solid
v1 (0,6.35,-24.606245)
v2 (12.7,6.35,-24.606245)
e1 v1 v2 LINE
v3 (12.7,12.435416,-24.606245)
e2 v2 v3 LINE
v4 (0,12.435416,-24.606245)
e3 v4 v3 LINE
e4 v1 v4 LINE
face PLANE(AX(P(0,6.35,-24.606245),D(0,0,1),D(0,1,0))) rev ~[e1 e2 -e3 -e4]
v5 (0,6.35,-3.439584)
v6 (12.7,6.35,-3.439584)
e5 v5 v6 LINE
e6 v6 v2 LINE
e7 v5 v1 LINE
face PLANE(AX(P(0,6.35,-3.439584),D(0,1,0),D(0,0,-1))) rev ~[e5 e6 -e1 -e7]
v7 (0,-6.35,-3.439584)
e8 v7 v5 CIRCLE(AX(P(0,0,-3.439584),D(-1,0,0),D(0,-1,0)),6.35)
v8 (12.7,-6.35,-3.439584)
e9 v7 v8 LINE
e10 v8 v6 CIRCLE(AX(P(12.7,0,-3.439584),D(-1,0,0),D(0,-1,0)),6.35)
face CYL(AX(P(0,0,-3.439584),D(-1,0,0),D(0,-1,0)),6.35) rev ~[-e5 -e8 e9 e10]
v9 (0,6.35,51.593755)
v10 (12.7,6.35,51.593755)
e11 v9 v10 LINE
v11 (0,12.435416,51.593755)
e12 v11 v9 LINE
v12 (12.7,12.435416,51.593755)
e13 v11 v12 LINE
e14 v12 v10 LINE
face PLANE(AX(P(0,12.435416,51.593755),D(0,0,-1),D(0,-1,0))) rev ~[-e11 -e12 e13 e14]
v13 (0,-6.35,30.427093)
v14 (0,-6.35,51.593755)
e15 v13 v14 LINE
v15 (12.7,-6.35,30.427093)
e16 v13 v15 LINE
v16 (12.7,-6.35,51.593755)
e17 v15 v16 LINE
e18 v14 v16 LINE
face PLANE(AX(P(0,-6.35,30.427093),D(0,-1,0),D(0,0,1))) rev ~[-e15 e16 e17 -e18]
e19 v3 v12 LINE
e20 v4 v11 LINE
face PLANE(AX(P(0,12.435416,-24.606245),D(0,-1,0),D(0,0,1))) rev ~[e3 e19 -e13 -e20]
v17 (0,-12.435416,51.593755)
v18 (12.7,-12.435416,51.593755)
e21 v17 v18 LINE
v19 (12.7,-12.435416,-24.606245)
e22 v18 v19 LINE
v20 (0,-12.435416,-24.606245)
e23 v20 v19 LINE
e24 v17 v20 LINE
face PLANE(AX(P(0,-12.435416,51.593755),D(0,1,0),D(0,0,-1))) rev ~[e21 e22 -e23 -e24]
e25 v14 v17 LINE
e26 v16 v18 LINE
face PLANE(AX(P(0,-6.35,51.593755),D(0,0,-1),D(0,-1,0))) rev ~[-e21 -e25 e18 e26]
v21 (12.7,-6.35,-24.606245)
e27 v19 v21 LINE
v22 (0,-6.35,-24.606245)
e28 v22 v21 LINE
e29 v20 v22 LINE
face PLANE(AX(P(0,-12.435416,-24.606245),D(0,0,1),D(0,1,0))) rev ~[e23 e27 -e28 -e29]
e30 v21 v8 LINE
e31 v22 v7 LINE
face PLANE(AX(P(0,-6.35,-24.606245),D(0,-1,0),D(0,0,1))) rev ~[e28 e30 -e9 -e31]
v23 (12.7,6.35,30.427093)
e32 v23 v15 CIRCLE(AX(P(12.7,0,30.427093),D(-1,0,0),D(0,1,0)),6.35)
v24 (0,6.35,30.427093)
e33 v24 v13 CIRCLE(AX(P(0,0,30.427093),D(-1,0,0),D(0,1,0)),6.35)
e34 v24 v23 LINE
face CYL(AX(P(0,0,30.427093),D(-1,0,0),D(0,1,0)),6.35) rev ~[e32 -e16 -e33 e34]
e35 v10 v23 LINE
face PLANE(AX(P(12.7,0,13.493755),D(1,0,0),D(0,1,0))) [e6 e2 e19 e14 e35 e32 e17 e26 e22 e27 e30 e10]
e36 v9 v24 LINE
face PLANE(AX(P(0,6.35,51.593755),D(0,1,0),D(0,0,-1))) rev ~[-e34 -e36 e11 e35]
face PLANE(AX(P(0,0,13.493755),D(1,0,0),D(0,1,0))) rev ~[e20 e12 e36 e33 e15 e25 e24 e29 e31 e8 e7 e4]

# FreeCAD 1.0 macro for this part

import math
import FreeCAD as App
import Part
import Sketcher

V = App.Vector
Q = App.Units.Quantity

doc = App.newDocument("Part")
body = doc.addObject("PartDesign::Body", "Body")

# Sketch on YZ plane
sketch1 = doc.addObject("Sketcher::SketchObject", "Sketch")
body.addObject(sketch1)
sketch1.AttachmentSupport = (doc.YZ_Plane, [""])
sketch1.MapMode = "FlatFace"
sketch1.addGeometry([
    Part.LineSegment(V(6.35, -24.606245, 0), V(12.435416, -24.606245, 0)),  # 0
    Part.LineSegment(V(12.435416, -24.606245, 0), V(12.435416, 51.593755, 0)),  # 1
    Part.LineSegment(V(12.435416, 51.593755, 0), V(6.35, 51.593755, 0)),  # 2
    Part.LineSegment(V(6.35, 51.593755, 0), V(6.35, 30.427093, 0)),  # 3
    Part.ArcOfCircle(Part.Circle(V(0, 30.427093, 0), V(0, 0, 1), 6.35), math.radians(180), math.radians(360)),  # 4
    Part.LineSegment(V(-6.35, 30.427093, 0), V(-6.35, 51.593755, 0)),  # 5
    Part.LineSegment(V(-6.35, 51.593755, 0), V(-12.435416, 51.593755, 0)),  # 6
    Part.LineSegment(V(-12.435416, 51.593755, 0), V(-12.435416, -24.606245, 0)),  # 7
    Part.LineSegment(V(-12.435416, -24.606245, 0), V(-6.35, -24.606245, 0)),  # 8
    Part.LineSegment(V(-6.35, -24.606245, 0), V(-6.35, -3.439584, 0)),  # 9
    Part.ArcOfCircle(Part.Circle(V(0, -3.439584, 0), V(0, 0, 1), 6.35), math.radians(0), math.radians(180)),  # 10
    Part.LineSegment(V(6.35, -3.439584, 0), V(6.35, -24.606245, 0)),  # 11
], False)
sketch1.addConstraint([
    Sketcher.Constraint("Coincident", 0, 2, 1, 1),
    Sketcher.Constraint("Coincident", 1, 2, 2, 1),
    Sketcher.Constraint("Coincident", 2, 2, 3, 1),
    Sketcher.Constraint("Tangent", 3, 2, 4, 2),
    Sketcher.Constraint("Tangent", 4, 1, 5, 1),
    Sketcher.Constraint("Coincident", 5, 2, 6, 1),
    Sketcher.Constraint("Coincident", 6, 2, 7, 1),
    Sketcher.Constraint("Coincident", 7, 2, 8, 1),
    Sketcher.Constraint("Coincident", 8, 2, 9, 1),
    Sketcher.Constraint("Tangent", 9, 2, 10, 2),
    Sketcher.Constraint("Tangent", 10, 1, 11, 1),
    Sketcher.Constraint("Coincident", 11, 2, 0, 1),
    Sketcher.Constraint("Horizontal", 0),
    Sketcher.Constraint("Vertical", 1),
    Sketcher.Constraint("Horizontal", 2),
    Sketcher.Constraint("Vertical", 3),
    Sketcher.Constraint("Vertical", 5),
    Sketcher.Constraint("Horizontal", 6),
    Sketcher.Constraint("Vertical", 7),
    Sketcher.Constraint("Horizontal", 8),
    Sketcher.Constraint("Vertical", 9),
    Sketcher.Constraint("Vertical", 11),
    Sketcher.Constraint("Equal", 4, 10),
    Sketcher.Constraint("Symmetric", 2, 2, 5, 2, -2),
    Sketcher.Constraint("Symmetric", 0, 2, 7, 2, -2),
    Sketcher.Constraint("PointOnObject", 10, 3, -2),
    Sketcher.Constraint("Equal", 5, 9),
    Sketcher.Constraint("DistanceY", 1, 1, 1, 2, Q("3 in")),
    Sketcher.Constraint("Radius", 4, Q("0.25 in")),
    Sketcher.Constraint("DistanceY", 9, 1, 9, 2, Q("21.166661 mm")),
    Sketcher.Constraint("DistanceX", 0, 1, 0, 2, Q("6.085416 mm")),
    Sketcher.Constraint("DistanceY", -1, 1, 4, 3, Q("30.427093 mm")),
])
pad1 = doc.addObject("PartDesign::Pad", "Pad")
body.addObject(pad1)
pad1.Profile = sketch1
pad1.Length = Q("0.5 in")

doc.recompute()
